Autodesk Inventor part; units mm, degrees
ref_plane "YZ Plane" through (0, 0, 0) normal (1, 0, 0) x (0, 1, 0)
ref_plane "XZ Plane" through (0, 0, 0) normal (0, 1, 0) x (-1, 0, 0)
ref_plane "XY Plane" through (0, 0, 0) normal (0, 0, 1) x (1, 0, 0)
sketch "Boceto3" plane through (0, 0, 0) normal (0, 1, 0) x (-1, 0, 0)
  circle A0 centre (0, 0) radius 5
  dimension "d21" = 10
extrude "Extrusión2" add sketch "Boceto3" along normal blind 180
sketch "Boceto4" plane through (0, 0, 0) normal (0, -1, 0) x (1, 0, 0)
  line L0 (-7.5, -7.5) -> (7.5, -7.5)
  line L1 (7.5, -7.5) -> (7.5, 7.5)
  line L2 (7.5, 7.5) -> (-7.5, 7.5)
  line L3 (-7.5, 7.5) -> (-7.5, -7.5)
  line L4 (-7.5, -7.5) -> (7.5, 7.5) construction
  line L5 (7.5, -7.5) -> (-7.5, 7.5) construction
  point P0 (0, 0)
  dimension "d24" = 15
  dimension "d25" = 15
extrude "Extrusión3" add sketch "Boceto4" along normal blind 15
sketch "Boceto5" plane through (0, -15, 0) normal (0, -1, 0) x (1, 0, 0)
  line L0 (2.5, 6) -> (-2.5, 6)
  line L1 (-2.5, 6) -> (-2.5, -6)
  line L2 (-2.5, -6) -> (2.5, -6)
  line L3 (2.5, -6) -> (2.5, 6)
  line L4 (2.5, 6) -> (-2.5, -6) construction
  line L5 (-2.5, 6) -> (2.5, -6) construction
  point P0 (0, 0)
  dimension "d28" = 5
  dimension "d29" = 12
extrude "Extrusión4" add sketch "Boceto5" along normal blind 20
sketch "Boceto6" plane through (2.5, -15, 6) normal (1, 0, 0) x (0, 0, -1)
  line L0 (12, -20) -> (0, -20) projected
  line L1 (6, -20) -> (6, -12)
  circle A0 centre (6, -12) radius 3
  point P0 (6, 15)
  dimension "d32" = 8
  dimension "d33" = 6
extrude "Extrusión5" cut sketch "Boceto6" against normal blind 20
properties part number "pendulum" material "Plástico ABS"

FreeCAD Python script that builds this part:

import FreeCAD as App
import Part
import Sketcher
from FreeCAD import Vector
Q = App.Units.Quantity

doc = App.newDocument("Part")
body = doc.addObject("PartDesign::Body", "Body")

# Sketch on XZ plane
sketch1 = doc.addObject("Sketcher::SketchObject", "Sketch")
body.addObject(sketch1)
sketch1.AttachmentSupport = (doc.XZ_Plane, [""])
sketch1.MapMode = "FlatFace"
sketch1.addGeometry(Part.Circle(Vector(0, 0, 0), Vector(0, 0, 1), 5), False)
sketch1.addConstraint(Sketcher.Constraint("Coincident", 0, 3, -1, 1))
sketch1.addConstraint(Sketcher.Constraint("Diameter", 0, Q("10 mm")))
pad1 = doc.addObject("PartDesign::Pad", "Pad")
body.addObject(pad1)
pad1.Profile = sketch1
pad1.Length = 180
pad1.Reversed = True

# Sketch on XZ plane
sketch2 = doc.addObject("Sketcher::SketchObject", "Sketch001")
body.addObject(sketch2)
sketch2.AttachmentSupport = (doc.XZ_Plane, [""])
sketch2.MapMode = "FlatFace"
sketch2.addGeometry(Part.LineSegment(Vector(-8, 8, 0), Vector(-8, -8, 0)), False)
sketch2.addGeometry(Part.LineSegment(Vector(-8, -8, 0), Vector(8, -8, 0)), False)
sketch2.addGeometry(Part.LineSegment(Vector(8, -8, 0), Vector(8, 8, 0)), False)
sketch2.addGeometry(Part.LineSegment(Vector(8, 8, 0), Vector(-8, 8, 0)), False)
sketch2.addConstraint(Sketcher.Constraint("Coincident", 0, 2, 1, 1))
sketch2.addConstraint(Sketcher.Constraint("Coincident", 1, 2, 2, 1))
sketch2.addConstraint(Sketcher.Constraint("Coincident", 2, 2, 3, 1))
sketch2.addConstraint(Sketcher.Constraint("Coincident", 3, 2, 0, 1))
sketch2.addConstraint(Sketcher.Constraint("Vertical", 0))
sketch2.addConstraint(Sketcher.Constraint("Horizontal", 1))
sketch2.addConstraint(Sketcher.Constraint("Vertical", 2))
sketch2.addConstraint(Sketcher.Constraint("Horizontal", 3))
sketch2.addConstraint(Sketcher.Constraint("Symmetric", 0, 2, 2, 2, -1, 1))
sketch2.addConstraint(Sketcher.Constraint("Equal", 3, 0))
sketch2.addConstraint(Sketcher.Constraint("DistanceX", 1, 1, 1, 2, Q("15 mm")))
pad2 = doc.addObject("PartDesign::Pad", "Pad001")
body.addObject(pad2)
pad2.Profile = sketch2
pad2.Length = 15

# Sketch on XZ plane
sketch3 = doc.addObject("Sketcher::SketchObject", "Sketch002")
body.addObject(sketch3)
sketch3.AttachmentSupport = (doc.XZ_Plane, [""])
sketch3.MapMode = "FlatFace"
sketch3.AttachmentOffset = App.Placement(Vector(0, 0, 15), App.Rotation())
sketch3.addGeometry(Part.LineSegment(Vector(2, -6, 0), Vector(2, 6, 0)), False)
sketch3.addGeometry(Part.LineSegment(Vector(2, 6, 0), Vector(-2, 6, 0)), False)
sketch3.addGeometry(Part.LineSegment(Vector(-2, 6, 0), Vector(-2, -6, 0)), False)
sketch3.addGeometry(Part.LineSegment(Vector(-2, -6, 0), Vector(2, -6, 0)), False)
sketch3.addConstraint(Sketcher.Constraint("Coincident", 0, 2, 1, 1))
sketch3.addConstraint(Sketcher.Constraint("Coincident", 1, 2, 2, 1))
sketch3.addConstraint(Sketcher.Constraint("Coincident", 2, 2, 3, 1))
sketch3.addConstraint(Sketcher.Constraint("Coincident", 3, 2, 0, 1))
sketch3.addConstraint(Sketcher.Constraint("Vertical", 0))
sketch3.addConstraint(Sketcher.Constraint("Horizontal", 1))
sketch3.addConstraint(Sketcher.Constraint("Vertical", 2))
sketch3.addConstraint(Sketcher.Constraint("Horizontal", 3))
sketch3.addConstraint(Sketcher.Constraint("Symmetric", 0, 2, 2, 2, -1, 1))
sketch3.addConstraint(Sketcher.Constraint("DistanceX", 1, 2, 1, 1, Q("5 mm")))
sketch3.addConstraint(Sketcher.Constraint("DistanceY", 0, 1, 0, 2, Q("12 mm")))
pad3 = doc.addObject("PartDesign::Pad", "Pad002")
body.addObject(pad3)
pad3.Profile = sketch3
pad3.Length = 20

# Sketch on YZ plane
sketch4 = doc.addObject("Sketcher::SketchObject", "Sketch003")
body.addObject(sketch4)
sketch4.AttachmentSupport = (doc.YZ_Plane, [""])
sketch4.MapMode = "FlatFace"
sketch4.AttachmentOffset = App.Placement(Vector(0, 0, 2.5), App.Rotation())
sketch4.addGeometry(Part.Circle(Vector(-27, 0, 0), Vector(0, 0, 1), 3), False)
sketch4.addConstraint(Sketcher.Constraint("PointOnObject", 0, 3, -1))
sketch4.addConstraint(Sketcher.Constraint("Diameter", 0, Q("6 mm")))
sketch4.addConstraint(Sketcher.Constraint("DistanceX", 0, 3, -1, 1, Q("27 mm")))
pocket1 = doc.addObject("PartDesign::Pocket", "Pocket")
body.addObject(pocket1)
pocket1.Profile = sketch4
pocket1.Length = 20

doc.recompute()
